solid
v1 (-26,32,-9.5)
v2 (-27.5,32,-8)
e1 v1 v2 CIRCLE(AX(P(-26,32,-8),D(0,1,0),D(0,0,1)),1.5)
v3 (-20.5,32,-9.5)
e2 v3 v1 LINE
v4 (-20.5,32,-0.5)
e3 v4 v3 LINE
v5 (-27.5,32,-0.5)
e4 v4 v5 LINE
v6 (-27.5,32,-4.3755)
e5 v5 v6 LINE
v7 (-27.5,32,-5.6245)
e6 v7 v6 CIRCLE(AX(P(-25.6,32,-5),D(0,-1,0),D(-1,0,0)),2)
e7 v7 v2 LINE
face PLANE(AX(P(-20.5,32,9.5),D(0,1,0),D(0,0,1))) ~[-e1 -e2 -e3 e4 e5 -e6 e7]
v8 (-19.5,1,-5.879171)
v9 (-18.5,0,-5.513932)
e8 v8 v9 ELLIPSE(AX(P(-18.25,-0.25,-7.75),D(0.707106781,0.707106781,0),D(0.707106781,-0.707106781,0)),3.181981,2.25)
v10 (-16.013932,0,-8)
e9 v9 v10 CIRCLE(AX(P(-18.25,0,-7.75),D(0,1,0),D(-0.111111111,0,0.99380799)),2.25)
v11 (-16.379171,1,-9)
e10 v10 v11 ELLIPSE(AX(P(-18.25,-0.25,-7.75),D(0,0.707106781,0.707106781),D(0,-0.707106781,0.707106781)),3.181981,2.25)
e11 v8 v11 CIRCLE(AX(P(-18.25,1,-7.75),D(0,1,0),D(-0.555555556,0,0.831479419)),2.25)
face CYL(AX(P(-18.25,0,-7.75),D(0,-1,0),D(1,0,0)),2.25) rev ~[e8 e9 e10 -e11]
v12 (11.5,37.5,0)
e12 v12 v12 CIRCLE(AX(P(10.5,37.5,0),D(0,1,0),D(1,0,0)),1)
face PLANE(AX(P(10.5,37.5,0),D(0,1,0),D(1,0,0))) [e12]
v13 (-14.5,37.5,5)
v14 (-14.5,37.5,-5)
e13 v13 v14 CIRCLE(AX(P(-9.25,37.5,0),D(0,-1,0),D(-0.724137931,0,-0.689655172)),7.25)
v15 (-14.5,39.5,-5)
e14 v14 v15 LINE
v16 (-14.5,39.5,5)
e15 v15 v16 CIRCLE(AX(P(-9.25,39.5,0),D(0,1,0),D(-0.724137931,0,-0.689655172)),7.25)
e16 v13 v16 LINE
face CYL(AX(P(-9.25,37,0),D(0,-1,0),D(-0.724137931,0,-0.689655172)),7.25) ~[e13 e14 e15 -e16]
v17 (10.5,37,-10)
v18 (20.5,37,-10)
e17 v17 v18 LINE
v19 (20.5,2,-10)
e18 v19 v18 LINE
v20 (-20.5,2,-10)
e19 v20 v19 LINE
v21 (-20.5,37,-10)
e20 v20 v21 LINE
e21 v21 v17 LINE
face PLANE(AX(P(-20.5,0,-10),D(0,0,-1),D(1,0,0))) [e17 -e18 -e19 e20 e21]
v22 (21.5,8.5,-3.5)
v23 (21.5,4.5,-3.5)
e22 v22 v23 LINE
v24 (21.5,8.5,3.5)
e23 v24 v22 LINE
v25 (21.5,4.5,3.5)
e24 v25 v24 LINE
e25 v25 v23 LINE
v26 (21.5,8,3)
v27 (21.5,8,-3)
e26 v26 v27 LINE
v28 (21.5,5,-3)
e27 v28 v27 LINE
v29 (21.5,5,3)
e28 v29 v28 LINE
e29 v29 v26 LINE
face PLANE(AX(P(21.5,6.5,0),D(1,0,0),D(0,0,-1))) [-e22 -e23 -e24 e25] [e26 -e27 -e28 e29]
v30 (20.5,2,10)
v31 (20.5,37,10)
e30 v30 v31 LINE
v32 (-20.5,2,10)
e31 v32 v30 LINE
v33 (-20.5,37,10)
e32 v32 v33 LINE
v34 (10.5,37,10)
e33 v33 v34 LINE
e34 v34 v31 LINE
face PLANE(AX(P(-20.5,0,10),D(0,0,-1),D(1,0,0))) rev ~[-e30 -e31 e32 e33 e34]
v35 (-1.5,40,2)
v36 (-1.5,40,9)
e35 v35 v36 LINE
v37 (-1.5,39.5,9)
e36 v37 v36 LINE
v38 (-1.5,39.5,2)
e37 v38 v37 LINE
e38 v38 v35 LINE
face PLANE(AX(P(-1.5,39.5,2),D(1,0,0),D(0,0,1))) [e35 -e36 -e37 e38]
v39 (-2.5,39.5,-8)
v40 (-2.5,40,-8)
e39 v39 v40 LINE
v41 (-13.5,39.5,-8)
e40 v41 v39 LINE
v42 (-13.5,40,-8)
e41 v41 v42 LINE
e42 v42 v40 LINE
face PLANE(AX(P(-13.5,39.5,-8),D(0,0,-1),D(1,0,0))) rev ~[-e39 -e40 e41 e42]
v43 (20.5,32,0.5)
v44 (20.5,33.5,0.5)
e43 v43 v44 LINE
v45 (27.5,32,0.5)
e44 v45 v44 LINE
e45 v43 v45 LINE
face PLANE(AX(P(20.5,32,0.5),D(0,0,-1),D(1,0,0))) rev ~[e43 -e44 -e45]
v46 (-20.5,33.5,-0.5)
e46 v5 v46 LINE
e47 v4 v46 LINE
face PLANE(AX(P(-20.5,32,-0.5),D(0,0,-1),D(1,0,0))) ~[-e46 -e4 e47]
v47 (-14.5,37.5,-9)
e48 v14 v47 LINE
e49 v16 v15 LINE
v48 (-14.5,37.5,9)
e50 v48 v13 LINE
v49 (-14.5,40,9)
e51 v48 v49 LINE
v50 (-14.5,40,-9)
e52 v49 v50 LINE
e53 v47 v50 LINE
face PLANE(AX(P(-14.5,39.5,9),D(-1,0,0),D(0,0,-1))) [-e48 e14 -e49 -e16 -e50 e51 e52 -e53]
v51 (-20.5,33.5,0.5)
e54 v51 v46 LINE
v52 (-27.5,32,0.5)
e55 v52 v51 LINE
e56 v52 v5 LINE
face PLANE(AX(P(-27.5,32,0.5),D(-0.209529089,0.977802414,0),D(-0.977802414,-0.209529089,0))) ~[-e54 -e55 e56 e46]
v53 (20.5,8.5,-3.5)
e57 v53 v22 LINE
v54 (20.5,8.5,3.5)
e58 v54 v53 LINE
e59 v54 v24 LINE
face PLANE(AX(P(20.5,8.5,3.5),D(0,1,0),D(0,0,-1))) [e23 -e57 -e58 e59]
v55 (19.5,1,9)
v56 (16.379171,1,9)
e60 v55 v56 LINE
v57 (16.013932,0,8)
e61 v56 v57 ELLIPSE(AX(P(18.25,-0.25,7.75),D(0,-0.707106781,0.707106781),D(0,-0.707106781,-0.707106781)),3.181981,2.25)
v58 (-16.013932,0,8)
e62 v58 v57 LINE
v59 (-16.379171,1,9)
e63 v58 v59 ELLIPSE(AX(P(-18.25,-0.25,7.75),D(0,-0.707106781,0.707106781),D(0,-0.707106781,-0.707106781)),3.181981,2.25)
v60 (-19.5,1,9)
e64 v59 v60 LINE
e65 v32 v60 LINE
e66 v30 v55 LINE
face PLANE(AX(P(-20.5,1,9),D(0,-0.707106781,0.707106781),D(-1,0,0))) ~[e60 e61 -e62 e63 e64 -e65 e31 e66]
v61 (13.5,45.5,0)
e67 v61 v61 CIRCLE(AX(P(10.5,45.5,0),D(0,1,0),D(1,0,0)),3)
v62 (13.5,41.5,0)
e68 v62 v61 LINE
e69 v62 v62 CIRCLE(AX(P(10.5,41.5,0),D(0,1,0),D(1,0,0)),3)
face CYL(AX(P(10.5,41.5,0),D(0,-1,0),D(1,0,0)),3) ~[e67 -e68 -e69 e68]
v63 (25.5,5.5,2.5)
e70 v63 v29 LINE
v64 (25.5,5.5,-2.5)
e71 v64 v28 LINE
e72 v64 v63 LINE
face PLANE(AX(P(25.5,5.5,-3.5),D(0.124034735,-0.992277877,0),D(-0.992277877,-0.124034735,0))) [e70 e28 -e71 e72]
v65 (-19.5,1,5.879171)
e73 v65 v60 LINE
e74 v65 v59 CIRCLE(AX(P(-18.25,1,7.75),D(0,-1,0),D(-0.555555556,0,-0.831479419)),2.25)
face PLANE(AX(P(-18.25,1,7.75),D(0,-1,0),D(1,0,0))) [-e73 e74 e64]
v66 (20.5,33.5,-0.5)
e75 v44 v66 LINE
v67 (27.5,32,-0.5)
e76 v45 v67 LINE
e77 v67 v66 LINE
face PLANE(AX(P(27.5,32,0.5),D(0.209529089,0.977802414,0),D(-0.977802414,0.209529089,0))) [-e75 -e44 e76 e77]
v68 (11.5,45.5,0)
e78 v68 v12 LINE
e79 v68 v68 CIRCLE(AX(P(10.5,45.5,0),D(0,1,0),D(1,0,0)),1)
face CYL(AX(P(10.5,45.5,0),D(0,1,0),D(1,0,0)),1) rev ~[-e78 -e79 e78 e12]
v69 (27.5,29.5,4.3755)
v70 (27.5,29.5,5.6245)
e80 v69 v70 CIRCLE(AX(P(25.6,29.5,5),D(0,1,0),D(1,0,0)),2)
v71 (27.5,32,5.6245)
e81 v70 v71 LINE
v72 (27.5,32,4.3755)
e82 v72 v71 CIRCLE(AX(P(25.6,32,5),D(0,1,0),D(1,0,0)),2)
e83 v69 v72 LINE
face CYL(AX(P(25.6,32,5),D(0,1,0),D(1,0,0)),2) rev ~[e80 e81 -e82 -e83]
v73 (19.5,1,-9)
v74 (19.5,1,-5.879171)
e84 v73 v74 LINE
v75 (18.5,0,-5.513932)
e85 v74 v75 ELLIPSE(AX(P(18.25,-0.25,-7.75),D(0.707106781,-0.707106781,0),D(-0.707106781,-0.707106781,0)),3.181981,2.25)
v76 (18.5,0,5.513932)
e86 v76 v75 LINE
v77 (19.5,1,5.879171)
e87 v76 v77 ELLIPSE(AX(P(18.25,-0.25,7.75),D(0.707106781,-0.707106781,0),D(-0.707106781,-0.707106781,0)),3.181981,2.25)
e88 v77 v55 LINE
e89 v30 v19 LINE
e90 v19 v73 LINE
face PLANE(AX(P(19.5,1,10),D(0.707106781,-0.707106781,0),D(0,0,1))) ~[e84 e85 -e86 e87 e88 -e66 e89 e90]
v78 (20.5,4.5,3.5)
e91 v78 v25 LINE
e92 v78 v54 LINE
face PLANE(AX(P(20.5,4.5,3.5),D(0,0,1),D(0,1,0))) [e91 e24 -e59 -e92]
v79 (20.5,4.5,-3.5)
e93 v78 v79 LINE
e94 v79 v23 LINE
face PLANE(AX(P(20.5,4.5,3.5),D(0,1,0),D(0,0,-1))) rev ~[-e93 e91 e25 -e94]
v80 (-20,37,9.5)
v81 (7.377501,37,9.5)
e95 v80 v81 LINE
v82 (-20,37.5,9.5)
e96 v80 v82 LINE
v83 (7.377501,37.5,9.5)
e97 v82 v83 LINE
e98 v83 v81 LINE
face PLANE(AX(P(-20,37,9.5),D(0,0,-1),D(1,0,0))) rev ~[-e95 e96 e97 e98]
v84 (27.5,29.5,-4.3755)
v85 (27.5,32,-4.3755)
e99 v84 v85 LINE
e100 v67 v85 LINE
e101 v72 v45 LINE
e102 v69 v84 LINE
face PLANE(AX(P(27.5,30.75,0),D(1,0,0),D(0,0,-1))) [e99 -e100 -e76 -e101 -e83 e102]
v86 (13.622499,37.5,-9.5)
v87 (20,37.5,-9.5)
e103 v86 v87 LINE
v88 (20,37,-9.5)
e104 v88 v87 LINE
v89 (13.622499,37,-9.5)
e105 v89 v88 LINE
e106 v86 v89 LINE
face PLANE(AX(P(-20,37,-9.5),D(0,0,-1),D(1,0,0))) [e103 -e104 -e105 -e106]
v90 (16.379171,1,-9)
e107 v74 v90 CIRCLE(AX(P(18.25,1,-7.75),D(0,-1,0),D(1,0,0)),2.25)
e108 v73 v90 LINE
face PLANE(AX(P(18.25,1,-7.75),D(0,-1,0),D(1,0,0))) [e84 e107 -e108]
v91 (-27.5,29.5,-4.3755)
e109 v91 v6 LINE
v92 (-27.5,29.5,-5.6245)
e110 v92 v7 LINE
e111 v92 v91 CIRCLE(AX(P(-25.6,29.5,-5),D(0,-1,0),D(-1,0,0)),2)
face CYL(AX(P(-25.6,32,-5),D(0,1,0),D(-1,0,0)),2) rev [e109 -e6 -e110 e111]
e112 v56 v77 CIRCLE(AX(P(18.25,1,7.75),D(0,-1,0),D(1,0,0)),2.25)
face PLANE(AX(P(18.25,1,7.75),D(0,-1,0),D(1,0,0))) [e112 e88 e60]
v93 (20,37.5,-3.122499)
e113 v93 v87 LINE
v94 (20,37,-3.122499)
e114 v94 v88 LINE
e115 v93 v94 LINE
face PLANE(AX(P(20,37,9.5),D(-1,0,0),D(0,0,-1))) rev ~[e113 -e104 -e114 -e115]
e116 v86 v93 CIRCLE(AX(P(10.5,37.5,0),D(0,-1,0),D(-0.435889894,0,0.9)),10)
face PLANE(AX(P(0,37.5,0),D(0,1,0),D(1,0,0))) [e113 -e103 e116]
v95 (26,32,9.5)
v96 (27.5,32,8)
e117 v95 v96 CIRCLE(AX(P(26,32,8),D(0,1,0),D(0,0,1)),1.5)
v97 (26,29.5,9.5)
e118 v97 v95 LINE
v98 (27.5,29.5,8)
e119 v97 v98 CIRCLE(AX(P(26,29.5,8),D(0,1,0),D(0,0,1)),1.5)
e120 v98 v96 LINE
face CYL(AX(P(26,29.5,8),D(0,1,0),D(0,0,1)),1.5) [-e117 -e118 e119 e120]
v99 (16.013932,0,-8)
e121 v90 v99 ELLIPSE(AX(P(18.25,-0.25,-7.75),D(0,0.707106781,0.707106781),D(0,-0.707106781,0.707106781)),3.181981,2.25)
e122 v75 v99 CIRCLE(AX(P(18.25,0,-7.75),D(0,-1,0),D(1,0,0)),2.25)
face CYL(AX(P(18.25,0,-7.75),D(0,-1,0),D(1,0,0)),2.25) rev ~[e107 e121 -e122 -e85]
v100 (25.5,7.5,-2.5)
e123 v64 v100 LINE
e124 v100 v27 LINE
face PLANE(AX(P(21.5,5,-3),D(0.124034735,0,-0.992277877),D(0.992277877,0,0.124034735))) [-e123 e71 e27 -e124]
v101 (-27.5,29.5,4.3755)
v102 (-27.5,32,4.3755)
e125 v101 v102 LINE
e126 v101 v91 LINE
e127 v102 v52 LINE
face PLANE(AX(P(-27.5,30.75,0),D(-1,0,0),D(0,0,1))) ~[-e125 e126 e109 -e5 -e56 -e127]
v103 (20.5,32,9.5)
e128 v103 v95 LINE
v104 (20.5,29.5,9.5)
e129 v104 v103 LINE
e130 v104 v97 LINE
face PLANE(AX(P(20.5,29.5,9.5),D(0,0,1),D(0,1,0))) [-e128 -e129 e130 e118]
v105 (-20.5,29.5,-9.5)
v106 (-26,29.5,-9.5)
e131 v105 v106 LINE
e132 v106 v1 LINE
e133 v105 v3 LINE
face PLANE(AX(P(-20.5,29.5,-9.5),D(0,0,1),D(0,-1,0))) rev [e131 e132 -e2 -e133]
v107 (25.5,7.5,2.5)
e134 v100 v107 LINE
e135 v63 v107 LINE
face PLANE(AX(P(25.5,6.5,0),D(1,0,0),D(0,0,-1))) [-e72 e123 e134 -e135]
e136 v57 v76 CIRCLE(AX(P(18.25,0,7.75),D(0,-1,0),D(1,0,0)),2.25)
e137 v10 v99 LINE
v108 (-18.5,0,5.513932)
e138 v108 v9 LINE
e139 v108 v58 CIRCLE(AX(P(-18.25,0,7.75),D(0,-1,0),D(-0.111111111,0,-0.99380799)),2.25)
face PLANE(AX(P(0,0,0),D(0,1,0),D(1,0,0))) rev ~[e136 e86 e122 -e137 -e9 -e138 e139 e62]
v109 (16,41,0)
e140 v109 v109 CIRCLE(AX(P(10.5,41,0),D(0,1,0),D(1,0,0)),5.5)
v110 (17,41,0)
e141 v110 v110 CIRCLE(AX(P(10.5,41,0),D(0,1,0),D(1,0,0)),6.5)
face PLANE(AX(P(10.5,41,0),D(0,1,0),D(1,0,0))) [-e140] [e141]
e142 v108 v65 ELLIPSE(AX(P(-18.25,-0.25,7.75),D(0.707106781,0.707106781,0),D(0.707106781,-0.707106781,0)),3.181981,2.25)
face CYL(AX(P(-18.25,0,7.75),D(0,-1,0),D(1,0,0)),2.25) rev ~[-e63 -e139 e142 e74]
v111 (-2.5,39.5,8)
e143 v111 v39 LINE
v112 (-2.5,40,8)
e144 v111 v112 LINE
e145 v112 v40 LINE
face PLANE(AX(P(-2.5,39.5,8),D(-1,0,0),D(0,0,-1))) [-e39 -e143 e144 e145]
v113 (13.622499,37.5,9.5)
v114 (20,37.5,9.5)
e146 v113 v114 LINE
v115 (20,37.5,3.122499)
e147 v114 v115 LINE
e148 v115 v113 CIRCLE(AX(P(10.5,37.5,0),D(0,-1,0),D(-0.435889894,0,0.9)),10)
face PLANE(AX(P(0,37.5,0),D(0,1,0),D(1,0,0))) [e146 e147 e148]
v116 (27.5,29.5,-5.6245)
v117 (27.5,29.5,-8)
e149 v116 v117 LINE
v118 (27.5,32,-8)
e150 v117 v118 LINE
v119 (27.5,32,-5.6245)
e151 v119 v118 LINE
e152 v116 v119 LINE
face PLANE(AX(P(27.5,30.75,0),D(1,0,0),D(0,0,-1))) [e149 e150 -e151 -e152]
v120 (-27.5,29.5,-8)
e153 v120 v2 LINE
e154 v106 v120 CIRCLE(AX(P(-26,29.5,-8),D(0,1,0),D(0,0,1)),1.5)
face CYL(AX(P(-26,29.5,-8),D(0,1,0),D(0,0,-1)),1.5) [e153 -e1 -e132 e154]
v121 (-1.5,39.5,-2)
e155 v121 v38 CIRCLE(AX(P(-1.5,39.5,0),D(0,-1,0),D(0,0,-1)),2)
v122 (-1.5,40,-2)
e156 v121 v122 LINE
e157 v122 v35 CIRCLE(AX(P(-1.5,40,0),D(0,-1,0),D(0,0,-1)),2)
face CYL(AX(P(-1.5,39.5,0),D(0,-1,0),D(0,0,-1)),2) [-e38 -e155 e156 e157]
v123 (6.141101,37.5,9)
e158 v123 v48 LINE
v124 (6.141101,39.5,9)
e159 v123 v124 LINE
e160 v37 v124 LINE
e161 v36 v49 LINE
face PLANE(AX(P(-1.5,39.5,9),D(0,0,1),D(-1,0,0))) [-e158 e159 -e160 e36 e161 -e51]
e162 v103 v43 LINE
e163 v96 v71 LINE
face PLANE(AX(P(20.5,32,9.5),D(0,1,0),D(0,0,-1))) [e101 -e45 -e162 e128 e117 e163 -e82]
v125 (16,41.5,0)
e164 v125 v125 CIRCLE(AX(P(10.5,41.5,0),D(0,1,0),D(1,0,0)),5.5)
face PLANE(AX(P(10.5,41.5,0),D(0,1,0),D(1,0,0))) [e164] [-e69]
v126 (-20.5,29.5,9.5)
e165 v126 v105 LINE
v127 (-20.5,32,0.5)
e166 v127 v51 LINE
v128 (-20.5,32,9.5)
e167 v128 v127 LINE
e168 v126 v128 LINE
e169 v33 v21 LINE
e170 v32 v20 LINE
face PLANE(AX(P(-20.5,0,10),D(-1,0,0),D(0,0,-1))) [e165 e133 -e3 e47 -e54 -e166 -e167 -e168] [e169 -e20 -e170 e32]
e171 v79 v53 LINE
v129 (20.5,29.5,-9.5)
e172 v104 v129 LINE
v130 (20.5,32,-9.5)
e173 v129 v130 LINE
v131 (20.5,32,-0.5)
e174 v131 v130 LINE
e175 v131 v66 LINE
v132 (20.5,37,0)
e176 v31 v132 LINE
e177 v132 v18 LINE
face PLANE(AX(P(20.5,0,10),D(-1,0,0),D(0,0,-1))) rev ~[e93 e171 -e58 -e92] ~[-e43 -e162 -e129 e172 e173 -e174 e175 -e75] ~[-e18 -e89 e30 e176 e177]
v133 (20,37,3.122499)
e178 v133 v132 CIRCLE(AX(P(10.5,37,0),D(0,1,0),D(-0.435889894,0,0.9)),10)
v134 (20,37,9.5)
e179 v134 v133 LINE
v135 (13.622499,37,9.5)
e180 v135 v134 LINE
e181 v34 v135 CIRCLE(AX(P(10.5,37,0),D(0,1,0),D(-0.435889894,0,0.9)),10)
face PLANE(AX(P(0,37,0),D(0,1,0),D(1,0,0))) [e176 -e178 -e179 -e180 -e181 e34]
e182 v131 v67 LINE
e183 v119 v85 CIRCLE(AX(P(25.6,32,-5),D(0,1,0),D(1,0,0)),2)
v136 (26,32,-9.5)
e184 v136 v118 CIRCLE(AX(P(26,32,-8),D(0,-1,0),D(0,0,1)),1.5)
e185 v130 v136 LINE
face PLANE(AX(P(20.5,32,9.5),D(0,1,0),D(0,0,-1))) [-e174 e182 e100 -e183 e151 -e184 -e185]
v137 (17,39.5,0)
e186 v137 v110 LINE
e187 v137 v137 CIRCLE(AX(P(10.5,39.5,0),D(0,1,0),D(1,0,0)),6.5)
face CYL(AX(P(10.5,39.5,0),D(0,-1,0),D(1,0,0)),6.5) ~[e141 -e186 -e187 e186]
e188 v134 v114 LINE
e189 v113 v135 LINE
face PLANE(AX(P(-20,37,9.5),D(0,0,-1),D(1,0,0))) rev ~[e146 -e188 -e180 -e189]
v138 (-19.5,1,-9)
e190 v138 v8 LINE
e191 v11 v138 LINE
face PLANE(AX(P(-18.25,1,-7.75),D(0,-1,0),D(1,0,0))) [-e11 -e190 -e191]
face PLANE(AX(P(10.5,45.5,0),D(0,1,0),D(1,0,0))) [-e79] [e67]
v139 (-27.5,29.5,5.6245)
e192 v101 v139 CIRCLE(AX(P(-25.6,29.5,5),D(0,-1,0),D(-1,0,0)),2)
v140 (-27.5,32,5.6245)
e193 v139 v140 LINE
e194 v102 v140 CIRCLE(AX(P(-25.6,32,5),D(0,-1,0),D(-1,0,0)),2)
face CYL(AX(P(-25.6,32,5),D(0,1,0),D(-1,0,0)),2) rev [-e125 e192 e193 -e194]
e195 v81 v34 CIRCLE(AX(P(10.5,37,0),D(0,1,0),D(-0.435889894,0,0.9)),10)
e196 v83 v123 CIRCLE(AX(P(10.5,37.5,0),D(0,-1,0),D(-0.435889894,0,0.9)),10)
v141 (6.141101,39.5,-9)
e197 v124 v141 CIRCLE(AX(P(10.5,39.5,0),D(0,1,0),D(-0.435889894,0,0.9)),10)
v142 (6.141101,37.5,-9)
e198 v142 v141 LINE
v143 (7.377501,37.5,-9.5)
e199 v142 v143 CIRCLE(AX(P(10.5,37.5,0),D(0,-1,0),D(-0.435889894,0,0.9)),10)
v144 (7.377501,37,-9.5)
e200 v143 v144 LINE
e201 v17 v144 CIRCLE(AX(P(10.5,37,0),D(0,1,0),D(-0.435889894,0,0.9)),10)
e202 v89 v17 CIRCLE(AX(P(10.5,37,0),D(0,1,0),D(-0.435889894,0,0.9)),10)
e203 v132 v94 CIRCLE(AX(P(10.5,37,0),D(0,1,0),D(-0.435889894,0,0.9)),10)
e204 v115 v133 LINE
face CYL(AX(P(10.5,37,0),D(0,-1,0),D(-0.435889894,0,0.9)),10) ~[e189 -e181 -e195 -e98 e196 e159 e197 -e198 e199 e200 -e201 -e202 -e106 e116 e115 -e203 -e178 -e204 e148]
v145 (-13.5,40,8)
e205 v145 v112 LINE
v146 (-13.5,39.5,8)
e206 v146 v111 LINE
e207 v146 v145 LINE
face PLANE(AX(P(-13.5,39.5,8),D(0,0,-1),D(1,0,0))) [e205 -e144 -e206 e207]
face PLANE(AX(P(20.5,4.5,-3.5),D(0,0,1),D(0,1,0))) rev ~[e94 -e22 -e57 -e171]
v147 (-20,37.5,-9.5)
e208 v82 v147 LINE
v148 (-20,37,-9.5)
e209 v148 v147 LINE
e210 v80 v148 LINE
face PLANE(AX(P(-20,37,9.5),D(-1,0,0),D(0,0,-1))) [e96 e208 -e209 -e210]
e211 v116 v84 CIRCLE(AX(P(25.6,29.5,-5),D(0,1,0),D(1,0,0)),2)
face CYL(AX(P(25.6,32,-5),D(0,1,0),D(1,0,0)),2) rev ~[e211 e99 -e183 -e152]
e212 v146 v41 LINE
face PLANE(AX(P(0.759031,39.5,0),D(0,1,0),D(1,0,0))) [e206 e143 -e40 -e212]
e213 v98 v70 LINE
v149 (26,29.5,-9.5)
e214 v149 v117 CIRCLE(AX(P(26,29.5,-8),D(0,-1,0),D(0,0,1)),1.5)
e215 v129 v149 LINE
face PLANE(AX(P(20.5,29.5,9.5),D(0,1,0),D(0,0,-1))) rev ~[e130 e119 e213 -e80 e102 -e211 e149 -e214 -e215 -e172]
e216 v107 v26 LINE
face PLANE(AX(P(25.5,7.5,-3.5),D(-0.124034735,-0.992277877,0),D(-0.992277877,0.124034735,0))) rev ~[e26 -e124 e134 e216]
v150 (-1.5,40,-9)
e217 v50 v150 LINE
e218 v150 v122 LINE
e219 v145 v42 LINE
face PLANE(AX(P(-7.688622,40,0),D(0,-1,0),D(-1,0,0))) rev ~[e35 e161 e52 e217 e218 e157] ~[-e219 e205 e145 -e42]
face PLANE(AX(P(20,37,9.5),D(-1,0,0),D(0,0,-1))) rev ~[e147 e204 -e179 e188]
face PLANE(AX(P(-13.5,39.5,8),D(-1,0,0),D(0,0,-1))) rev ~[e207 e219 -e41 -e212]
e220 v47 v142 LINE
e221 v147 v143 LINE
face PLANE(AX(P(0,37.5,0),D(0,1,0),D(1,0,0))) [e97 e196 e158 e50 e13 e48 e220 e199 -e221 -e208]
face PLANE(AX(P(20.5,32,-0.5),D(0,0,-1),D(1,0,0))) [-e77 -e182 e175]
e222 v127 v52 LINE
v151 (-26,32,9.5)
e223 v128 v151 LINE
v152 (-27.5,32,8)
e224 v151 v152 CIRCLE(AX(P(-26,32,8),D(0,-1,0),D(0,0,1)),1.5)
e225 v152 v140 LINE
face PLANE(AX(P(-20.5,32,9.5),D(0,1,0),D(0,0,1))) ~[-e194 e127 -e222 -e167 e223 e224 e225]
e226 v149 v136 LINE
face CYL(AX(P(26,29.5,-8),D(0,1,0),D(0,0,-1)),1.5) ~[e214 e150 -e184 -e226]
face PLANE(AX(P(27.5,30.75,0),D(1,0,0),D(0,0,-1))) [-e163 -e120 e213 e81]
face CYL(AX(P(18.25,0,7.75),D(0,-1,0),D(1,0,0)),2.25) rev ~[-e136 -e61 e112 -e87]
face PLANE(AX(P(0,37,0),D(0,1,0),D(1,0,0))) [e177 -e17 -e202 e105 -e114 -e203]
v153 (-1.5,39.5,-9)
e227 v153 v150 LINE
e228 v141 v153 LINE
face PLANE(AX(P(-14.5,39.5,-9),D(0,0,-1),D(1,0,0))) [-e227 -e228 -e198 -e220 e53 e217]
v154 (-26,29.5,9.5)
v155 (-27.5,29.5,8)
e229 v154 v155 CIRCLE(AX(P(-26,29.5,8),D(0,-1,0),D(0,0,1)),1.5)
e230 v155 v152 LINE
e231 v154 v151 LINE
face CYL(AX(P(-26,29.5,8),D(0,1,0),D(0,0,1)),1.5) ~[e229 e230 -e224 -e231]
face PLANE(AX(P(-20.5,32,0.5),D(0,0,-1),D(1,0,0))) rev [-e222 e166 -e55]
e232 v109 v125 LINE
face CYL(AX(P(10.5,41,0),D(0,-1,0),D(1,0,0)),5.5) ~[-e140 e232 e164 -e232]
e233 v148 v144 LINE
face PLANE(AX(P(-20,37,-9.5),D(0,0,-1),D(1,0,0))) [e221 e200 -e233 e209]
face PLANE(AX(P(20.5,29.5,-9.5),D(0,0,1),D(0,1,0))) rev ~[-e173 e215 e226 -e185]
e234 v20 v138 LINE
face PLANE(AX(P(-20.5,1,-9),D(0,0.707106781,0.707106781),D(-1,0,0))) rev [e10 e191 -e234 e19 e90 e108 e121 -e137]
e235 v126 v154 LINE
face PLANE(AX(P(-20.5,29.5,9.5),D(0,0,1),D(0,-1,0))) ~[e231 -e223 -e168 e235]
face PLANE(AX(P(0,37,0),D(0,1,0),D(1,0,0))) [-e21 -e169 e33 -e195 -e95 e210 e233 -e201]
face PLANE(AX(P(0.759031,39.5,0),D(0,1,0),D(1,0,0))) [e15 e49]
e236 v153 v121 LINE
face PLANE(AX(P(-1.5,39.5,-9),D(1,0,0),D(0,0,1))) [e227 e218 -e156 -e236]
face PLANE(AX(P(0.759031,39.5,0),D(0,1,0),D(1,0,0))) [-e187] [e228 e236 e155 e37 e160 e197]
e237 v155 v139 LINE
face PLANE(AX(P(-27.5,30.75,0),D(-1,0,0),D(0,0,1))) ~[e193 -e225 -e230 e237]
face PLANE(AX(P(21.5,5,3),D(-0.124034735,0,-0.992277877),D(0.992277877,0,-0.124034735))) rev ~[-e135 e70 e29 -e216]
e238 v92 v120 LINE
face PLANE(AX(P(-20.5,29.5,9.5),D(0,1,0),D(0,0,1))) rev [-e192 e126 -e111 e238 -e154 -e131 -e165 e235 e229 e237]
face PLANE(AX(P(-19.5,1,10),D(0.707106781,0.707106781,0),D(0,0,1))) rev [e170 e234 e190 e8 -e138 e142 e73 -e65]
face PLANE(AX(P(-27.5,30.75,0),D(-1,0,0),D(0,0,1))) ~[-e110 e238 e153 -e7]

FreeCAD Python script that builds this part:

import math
import FreeCAD as App
import Part
import Sketcher
Q = App.Units.Quantity


def edges_at(feature, points):
    """Names of the edges that pass closest to the given points."""
    edges = feature.Shape.Edges
    near = lambda p: min(range(len(edges)), key=lambda i: edges[i].distToShape(Part.Vertex(*p))[0])
    return sorted({f"Edge{near(p) + 1}" for p in points})

doc = App.newDocument("Part")
params = doc.addObject("Spreadsheet::Sheet", "Params")
for row, (alias, value) in enumerate([
    ("sketch1_width", "41 mm"),
    ("sketch1_height", "20 mm"),
    ("pad1_length", "40 mm"),
    ("chamfer_size", "2 mm"),
    ("sketch2_diameter", "4.5 mm"),
    ("pocket1_length", "1 mm"),
    ("sketch3_height", "19 mm"),
    ("sketch3_width", "2.5 mm"),
    ("pad2_length", "7 mm"),
    ("fillet_radius", "1.5 mm"),
    ("sketch4_width", "7 mm"),
    ("sketch4_height", "1 mm"),
    ("pad3_length", "1.5 mm"),
    ("sketch5_width", "7 mm"),
    ("sketch5_height", "1.5 mm"),
    ("pocket2_length", "1 mm"),
    ("sketch6_diameter", "4 mm"),
    ("pocket3_length", "2.5 mm"),
    ("fillet2_radius", "1.5 mm"),
    ("sketch7_width", "41 mm"),
    ("sketch7_height", "20 mm"),
    ("pocket4_length", "3 mm"),
    ("sketch8_width", "40 mm"),
    ("sketch8_height", "19 mm"),
    ("pad4_length", "0.5 mm"),
    ("sketch9_radius", "10 mm"),
    ("sketch9_height", "4 mm"),
    ("sketch9_radius2", "7.25 mm"),
    ("pad5_length", "2.5 mm"),
    ("sketch10_radius", "2 mm"),
    ("sketch10_width", "13 mm"),
    ("sketch10_width2", "11 mm"),
    ("sketch10_height", "18 mm"),
    ("sketch10_height2", "16 mm"),
    ("pad6_length", "0.5 mm"),
    ("sketch11_diameter", "13 mm"),
    ("pad7_length", "1.5 mm"),
    ("sketch12_diameter", "11 mm"),
    ("pad8_length", "0.5 mm"),
    ("sketch13_diameter", "6 mm"),
    ("pad9_length", "4 mm"),
    ("sketch14_diameter", "2 mm"),
    ("pocket5_length", "8 mm"),
    ("sketch15_width", "4 mm"),
    ("sketch15_height", "7 mm"),
    ("pad10_length", "5 mm"),
    ("sketch16_width", "4 mm"),
    ("sketch16_width2", "3 mm"),
    ("sketch16_height", "7 mm"),
    ("sketch16_height2", "6 mm"),
    ("pocket6_length", "4 mm"),
    ("sketch17_width", "4 mm"),
    ("sketch17_height", "0.5 mm"),
    ("pocket7_length", "3 mm"),
    ("sketch18_width", "4 mm"),
    ("sketch18_height", "0.5 mm"),
    ("pocket8_length", "7 mm"),
], start=1):
    params.set(f"A{row}", alias)
    params.set(f"B{row}", "=" + value)
    params.setAlias(f"B{row}", alias)

body = doc.addObject("PartDesign::Body", "Body")

# Sketch on XZ plane
sketch1 = body.newObject("Sketcher::SketchObject", "Sketch")
sketch1.AttachmentSupport = (doc.getObject("XZ_Plane"), [""])
sketch1.MapMode = "FlatFace"
sketch1.addGeometry([
    Part.LineSegment(App.Vector(-20, -10, 0), App.Vector(-20, 10, 0)),
    Part.LineSegment(App.Vector(-20, 10, 0), App.Vector(20, 10, 0)),
    Part.LineSegment(App.Vector(20, 10, 0), App.Vector(20, -10, 0)),
    Part.LineSegment(App.Vector(20, -10, 0), App.Vector(-20, -10, 0)),
], False)
sketch1.addConstraint([
    Sketcher.Constraint("Coincident", 0, 2, 1, 1),
    Sketcher.Constraint("Coincident", 1, 2, 2, 1),
    Sketcher.Constraint("Coincident", 2, 2, 3, 1),
    Sketcher.Constraint("Coincident", 3, 2, 0, 1),
    Sketcher.Constraint("Vertical", 0),
    Sketcher.Constraint("Horizontal", 1),
    Sketcher.Constraint("Vertical", 2),
    Sketcher.Constraint("Horizontal", 3),
    Sketcher.Constraint("Symmetric", 0, 2, 2, 2, -1, 1),
    Sketcher.Constraint("DistanceX", 1, 1, 1, 2, Q("41 mm")),
    Sketcher.Constraint("DistanceY", 0, 1, 0, 2, Q("20 mm")),
])
sketch1.setExpression("Constraints[9]", "Params.sketch1_width")
sketch1.setExpression("Constraints[10]", "Params.sketch1_height")
pad1 = body.newObject("PartDesign::Pad", "Pad")
pad1.Profile = sketch1
pad1.setExpression("Length", "Params.pad1_length")
pad1.Reversed = True
doc.recompute()

chamfer = body.newObject("PartDesign::Chamfer", "Chamfer")
chamfer.Base = (pad1, edges_at(pad1, [
    (0, 0, 10),
    (-20.5, 0, 0),
    (0, 0, -10),
    (20.5, 0, 0),
]))
chamfer.setExpression("Size", "Params.chamfer_size")

# Sketch on XZ plane
sketch2 = body.newObject("Sketcher::SketchObject", "Sketch001")
sketch2.AttachmentSupport = (doc.getObject("XZ_Plane"), [""])
sketch2.MapMode = "FlatFace"
sketch2.addGeometry([
    Part.Circle(App.Vector(18.2, 7.8, 0), App.Vector(0, 0, 1), 2.2),
    Part.Circle(App.Vector(-18.2, 7.8, 0), App.Vector(0, 0, 1), 2.2),
    Part.Circle(App.Vector(-18.2, -7.8, 0), App.Vector(0, 0, 1), 2.2),
    Part.Circle(App.Vector(18.2, -7.8, 0), App.Vector(0, 0, 1), 2.2),
], False)
sketch2.addConstraint([
    Sketcher.Constraint("Equal", 0, 1),
    Sketcher.Constraint("Equal", 1, 2),
    Sketcher.Constraint("Equal", 2, 3),
    Sketcher.Constraint("Symmetric", 0, 3, 2, 3, -1, 1),
    Sketcher.Constraint("Symmetric", 1, 3, 3, 3, -1, 1),
    Sketcher.Constraint("Symmetric", 0, 3, 1, 3, -2),
    Sketcher.Constraint("Diameter", 0, Q("4.5 mm")),
    Sketcher.Constraint("DistanceX", 1, 3, 0, 3, Q("36.5 mm")),
    Sketcher.Constraint("DistanceY", 2, 3, 1, 3, Q("15.5 mm")),
])
sketch2.setExpression("Constraints[6]", "Params.sketch2_diameter")
pocket1 = body.newObject("PartDesign::Pocket", "Pocket")
pocket1.Profile = sketch2
pocket1.setExpression("Length", "Params.pocket1_length")

# Sketch on YZ plane
sketch3 = body.newObject("Sketcher::SketchObject", "Sketch002")
sketch3.AttachmentSupport = (doc.getObject("YZ_Plane"), [""])
sketch3.MapMode = "FlatFace"
sketch3.AttachmentOffset = App.Placement(App.Vector(0, 0, 20.5), App.Rotation())
sketch3.addGeometry([
    Part.LineSegment(App.Vector(32, 9.5, 0), App.Vector(29.5, 9.5, 0)),
    Part.LineSegment(App.Vector(29.5, 9.5, 0), App.Vector(29.5, -9.5, 0)),
    Part.LineSegment(App.Vector(29.5, -9.5, 0), App.Vector(32, -9.5, 0)),
    Part.LineSegment(App.Vector(32, -9.5, 0), App.Vector(32, 9.5, 0)),
], False)
sketch3.addConstraint([
    Sketcher.Constraint("Coincident", 0, 2, 1, 1),
    Sketcher.Constraint("Coincident", 1, 2, 2, 1),
    Sketcher.Constraint("Coincident", 2, 2, 3, 1),
    Sketcher.Constraint("Coincident", 3, 2, 0, 1),
    Sketcher.Constraint("Horizontal", 0),
    Sketcher.Constraint("Vertical", 1),
    Sketcher.Constraint("Horizontal", 2),
    Sketcher.Constraint("Vertical", 3),
    Sketcher.Constraint("DistanceY", 1, 2, 1, 1, Q("19 mm")),
    Sketcher.Constraint("DistanceX", 0, 2, 0, 1, Q("2.5 mm")),
    Sketcher.Constraint("DistanceX", -1, 1, 2, 2, Q("32 mm")),
    Sketcher.Constraint("DistanceY", -1, 1, 0, 2, Q("9.5 mm")),
])
sketch3.setExpression("Constraints[8]", "Params.sketch3_height")
sketch3.setExpression("Constraints[9]", "Params.sketch3_width")
pad2 = body.newObject("PartDesign::Pad", "Pad001")
pad2.Profile = sketch3
pad2.setExpression("Length", "Params.pad2_length")
doc.recompute()

fillet = body.newObject("PartDesign::Fillet", "Fillet")
fillet.Base = (pad2, edges_at(pad2, [(27.5, 30.75, 9.5), (27.5, 30.75, -9.5)]))
fillet.setExpression("Radius", "Params.fillet_radius")

# Sketch on XZ plane
sketch4 = body.newObject("Sketcher::SketchObject", "Sketch003")
sketch4.AttachmentSupport = (doc.getObject("XZ_Plane"), [""])
sketch4.MapMode = "FlatFace"
sketch4.AttachmentOffset = App.Placement(App.Vector(0, 0, -32), App.Rotation())
sketch4.addGeometry([
    Part.LineSegment(App.Vector(20.5, -0.5, 0), App.Vector(20.5, 0.5, 0)),
    Part.LineSegment(App.Vector(20.5, 0.5, 0), App.Vector(27.5, 0.5, 0)),
    Part.LineSegment(App.Vector(27.5, 0.5, 0), App.Vector(27.5, -0.5, 0)),
    Part.LineSegment(App.Vector(27.5, -0.5, 0), App.Vector(20.5, -0.5, 0)),
], False)
sketch4.addConstraint([
    Sketcher.Constraint("Coincident", 0, 2, 1, 1),
    Sketcher.Constraint("Coincident", 1, 2, 2, 1),
    Sketcher.Constraint("Coincident", 2, 2, 3, 1),
    Sketcher.Constraint("Coincident", 3, 2, 0, 1),
    Sketcher.Constraint("Vertical", 0),
    Sketcher.Constraint("Horizontal", 1),
    Sketcher.Constraint("Vertical", 2),
    Sketcher.Constraint("Horizontal", 3),
    Sketcher.Constraint("DistanceX", 1, 1, 1, 2, Q("7 mm")),
    Sketcher.Constraint("DistanceY", 0, 1, 0, 2, Q("1 mm")),
    Sketcher.Constraint("DistanceX", -1, 1, 0, 2, Q("20.5 mm")),
    Sketcher.Constraint("DistanceY", -1, 1, 0, 2, Q("0.5 mm")),
])
sketch4.setExpression("Constraints[8]", "Params.sketch4_width")
sketch4.setExpression("Constraints[9]", "Params.sketch4_height")
pad3 = body.newObject("PartDesign::Pad", "Pad002")
pad3.Profile = sketch4
pad3.setExpression("Length", "Params.pad3_length")
pad3.Reversed = True

# Sketch on XY plane
sketch5 = body.newObject("Sketcher::SketchObject", "Sketch004")
sketch5.AttachmentSupport = (doc.getObject("XY_Plane"), [""])
sketch5.MapMode = "FlatFace"
sketch5.AttachmentOffset = App.Placement(App.Vector(0, 0, 0.5), App.Rotation())
sketch5.addGeometry([
    Part.LineSegment(App.Vector(27.5, 32, 0), App.Vector(27.5, 33.5, 0)),
    Part.LineSegment(App.Vector(27.5, 33.5, 0), App.Vector(20.5, 33.5, 0)),
    Part.LineSegment(App.Vector(20.5, 33.5, 0), App.Vector(27.5, 32, 0)),
], False)
sketch5.addConstraint([
    Sketcher.Constraint("Coincident", 0, 2, 1, 1),
    Sketcher.Constraint("Coincident", 1, 2, 2, 1),
    Sketcher.Constraint("Coincident", 2, 2, 0, 1),
    Sketcher.Constraint("Vertical", 0),
    Sketcher.Constraint("Horizontal", 1),
    Sketcher.Constraint("DistanceX", 1, 2, 1, 1, Q("7 mm")),
    Sketcher.Constraint("DistanceY", 0, 1, 0, 2, Q("1.5 mm")),
    Sketcher.Constraint("DistanceY", -1, 1, 2, 2, Q("32 mm")),
    Sketcher.Constraint("DistanceX", -1, 1, 0, 2, Q("27.5 mm")),
])
sketch5.setExpression("Constraints[5]", "Params.sketch5_width")
sketch5.setExpression("Constraints[6]", "Params.sketch5_height")
pocket2 = body.newObject("PartDesign::Pocket", "Pocket001")
pocket2.Profile = sketch5
pocket2.setExpression("Length", "Params.pocket2_length")

# Sketch on XZ plane
sketch6 = body.newObject("Sketcher::SketchObject", "Sketch005")
sketch6.AttachmentSupport = (doc.getObject("XZ_Plane"), [""])
sketch6.MapMode = "FlatFace"
sketch6.AttachmentOffset = App.Placement(App.Vector(0, 0, -32), App.Rotation())
sketch6.addGeometry([
    Part.Circle(App.Vector(25.6, -5, 0), App.Vector(0, 0, 1), 2),
    Part.Circle(App.Vector(25.6, 5, 0), App.Vector(0, 0, 1), 2),
], False)
sketch6.addConstraint([
    Sketcher.Constraint("Equal", 0, 1),
    Sketcher.Constraint("Symmetric", 0, 3, 1, 3, -1),
    Sketcher.Constraint("Diameter", 0, Q("4 mm")),
    Sketcher.Constraint("DistanceY", 0, 3, -1, 1, Q("5 mm")),
    Sketcher.Constraint("DistanceX", -1, 1, 0, 3, Q("25.6 mm")),
])
sketch6.setExpression("Constraints[2]", "Params.sketch6_diameter")
pocket3 = body.newObject("PartDesign::Pocket", "Pocket002")
pocket3.Profile = sketch6
pocket3.setExpression("Length", "Params.pocket3_length")
pocket3.Reversed = True
doc.recompute()

mirrored = body.newObject("PartDesign::Mirrored", "Mirrored")
mirrored.Originals = [pad2, pad3, pocket2, pocket3]
mirrored.MirrorPlane = (doc.getObject("YZ_Plane"), [""])
body.Tip = mirrored
doc.recompute()

fillet2 = body.newObject("PartDesign::Fillet", "Fillet001")
fillet2.Base = (mirrored, edges_at(mirrored, [(-27.5, 30.75, 9.5), (-27.5, 30.75, -9.5)]))
fillet2.setExpression("Radius", "Params.fillet2_radius")

# Sketch on XZ plane
sketch7 = body.newObject("Sketcher::SketchObject", "Sketch006")
sketch7.AttachmentSupport = (doc.getObject("XZ_Plane"), [""])
sketch7.MapMode = "FlatFace"
sketch7.AttachmentOffset = App.Placement(App.Vector(0, 0, -40), App.Rotation())
sketch7.addGeometry([
    Part.LineSegment(App.Vector(-20, -10, 0), App.Vector(-20, 10, 0)),
    Part.LineSegment(App.Vector(-20, 10, 0), App.Vector(20, 10, 0)),
    Part.LineSegment(App.Vector(20, 10, 0), App.Vector(20, -10, 0)),
    Part.LineSegment(App.Vector(20, -10, 0), App.Vector(-20, -10, 0)),
], False)
sketch7.addConstraint([
    Sketcher.Constraint("Coincident", 0, 2, 1, 1),
    Sketcher.Constraint("Coincident", 1, 2, 2, 1),
    Sketcher.Constraint("Coincident", 2, 2, 3, 1),
    Sketcher.Constraint("Coincident", 3, 2, 0, 1),
    Sketcher.Constraint("Vertical", 0),
    Sketcher.Constraint("Horizontal", 1),
    Sketcher.Constraint("Vertical", 2),
    Sketcher.Constraint("Horizontal", 3),
    Sketcher.Constraint("Symmetric", 0, 2, 2, 2, -1, 1),
    Sketcher.Constraint("DistanceX", 1, 1, 1, 2, Q("41 mm")),
    Sketcher.Constraint("DistanceY", 0, 1, 0, 2, Q("20 mm")),
])
sketch7.setExpression("Constraints[9]", "Params.sketch7_width")
sketch7.setExpression("Constraints[10]", "Params.sketch7_height")
pocket4 = body.newObject("PartDesign::Pocket", "Pocket003")
pocket4.Profile = sketch7
pocket4.setExpression("Length", "Params.pocket4_length")
pocket4.Reversed = True

# Sketch on XZ plane
sketch8 = body.newObject("Sketcher::SketchObject", "Sketch007")
sketch8.AttachmentSupport = (doc.getObject("XZ_Plane"), [""])
sketch8.MapMode = "FlatFace"
sketch8.AttachmentOffset = App.Placement(App.Vector(0, 0, -37), App.Rotation())
sketch8.addGeometry([
    Part.LineSegment(App.Vector(-20, -10, 0), App.Vector(-20, 10, 0)),
    Part.LineSegment(App.Vector(-20, 10, 0), App.Vector(20, 10, 0)),
    Part.LineSegment(App.Vector(20, 10, 0), App.Vector(20, -10, 0)),
    Part.LineSegment(App.Vector(20, -10, 0), App.Vector(-20, -10, 0)),
], False)
sketch8.addConstraint([
    Sketcher.Constraint("Coincident", 0, 2, 1, 1),
    Sketcher.Constraint("Coincident", 1, 2, 2, 1),
    Sketcher.Constraint("Coincident", 2, 2, 3, 1),
    Sketcher.Constraint("Coincident", 3, 2, 0, 1),
    Sketcher.Constraint("Vertical", 0),
    Sketcher.Constraint("Horizontal", 1),
    Sketcher.Constraint("Vertical", 2),
    Sketcher.Constraint("Horizontal", 3),
    Sketcher.Constraint("Symmetric", 0, 2, 2, 2, -1, 1),
    Sketcher.Constraint("DistanceX", 1, 1, 1, 2, Q("40 mm")),
    Sketcher.Constraint("DistanceY", 0, 1, 0, 2, Q("19 mm")),
])
sketch8.setExpression("Constraints[9]", "Params.sketch8_width")
sketch8.setExpression("Constraints[10]", "Params.sketch8_height")
pad4 = body.newObject("PartDesign::Pad", "Pad003")
pad4.Profile = sketch8
pad4.setExpression("Length", "Params.pad4_length")
pad4.Reversed = True

# Sketch on XZ plane
sketch9 = body.newObject("Sketcher::SketchObject", "Sketch008")
sketch9.AttachmentSupport = (doc.getObject("XZ_Plane"), [""])
sketch9.MapMode = "FlatFace"
sketch9.AttachmentOffset = App.Placement(App.Vector(0, 0, -37), App.Rotation())
sketch9.addGeometry([
    Part.LineSegment(App.Vector(6.1, -9, 0), App.Vector(-14.5, -9, 0)),  # 0
    Part.LineSegment(App.Vector(-14.5, -9, 0), App.Vector(-14.5, -5, 0)),  # 1
    Part.ArcOfCircle(Part.Circle(App.Vector(-9.2, 0, 0), App.Vector(0, 0, 1), 7.2), math.radians(136), math.radians(224)),  # 2
    Part.LineSegment(App.Vector(-14.5, 5, 0), App.Vector(-14.5, 9, 0)),  # 3
    Part.LineSegment(App.Vector(-14.5, 9, 0), App.Vector(6.1, 9, 0)),  # 4
    Part.ArcOfCircle(Part.Circle(App.Vector(10.5, 0, 0), App.Vector(0, 0, 1), 10), math.radians(-116), math.radians(116)),  # 5
], False)
sketch9.addConstraint([
    Sketcher.Constraint("Coincident", 0, 2, 1, 1),
    Sketcher.Constraint("Coincident", 1, 2, 2, 2),
    Sketcher.Constraint("Coincident", 2, 1, 3, 1),
    Sketcher.Constraint("Coincident", 3, 2, 4, 1),
    Sketcher.Constraint("Coincident", 4, 2, 5, 2),
    Sketcher.Constraint("Coincident", 5, 1, 0, 1),
    Sketcher.Constraint("Horizontal", 0),
    Sketcher.Constraint("Vertical", 1),
    Sketcher.Constraint("Vertical", 3),
    Sketcher.Constraint("Horizontal", 4),
    Sketcher.Constraint("Symmetric", 1, 2, 2, 1, -1),
    Sketcher.Constraint("Symmetric", 4, 2, 5, 1, -1),
    Sketcher.Constraint("Radius", 5, Q("10 mm")),
    Sketcher.Constraint("DistanceY", 1, 1, 1, 2, Q("4 mm")),
    Sketcher.Constraint("Radius", 2, Q("7.25 mm")),
    Sketcher.Constraint("DistanceY", 0, 2, -1, 1, Q("9 mm")),
    Sketcher.Constraint("DistanceX", 0, 2, 5, 3, Q("25 mm")),
    Sketcher.Constraint("DistanceX", -1, 1, 5, 3, Q("10.5 mm")),
])
sketch9.setExpression("Constraints[12]", "Params.sketch9_radius")
sketch9.setExpression("Constraints[13]", "Params.sketch9_height")
sketch9.setExpression("Constraints[14]", "Params.sketch9_radius2")
pad5 = body.newObject("PartDesign::Pad", "Pad004")
pad5.Profile = sketch9
pad5.setExpression("Length", "Params.pad5_length")
pad5.Reversed = True

# Sketch on XZ plane
sketch10 = body.newObject("Sketcher::SketchObject", "Sketch009")
sketch10.AttachmentSupport = (doc.getObject("XZ_Plane"), [""])
sketch10.MapMode = "FlatFace"
sketch10.AttachmentOffset = App.Placement(App.Vector(0, 0, -39.5), App.Rotation())
sketch10.addGeometry([
    Part.LineSegment(App.Vector(-1.5, -9, 0), App.Vector(-14.5, -9, 0)),  # 0
    Part.LineSegment(App.Vector(-14.5, -9, 0), App.Vector(-14.5, 9, 0)),  # 1
    Part.LineSegment(App.Vector(-14.5, 9, 0), App.Vector(-1.5, 9, 0)),  # 2
    Part.LineSegment(App.Vector(-1.5, 9, 0), App.Vector(-1.5, 2, 0)),  # 3
    Part.ArcOfCircle(Part.Circle(App.Vector(-1.5, 0, 0), App.Vector(0, 0, 1), 2), math.radians(-90), math.radians(90)),  # 4
    Part.LineSegment(App.Vector(-1.5, -2, 0), App.Vector(-1.5, -9, 0)),  # 5
    Part.LineSegment(App.Vector(-13.5, 8, 0), App.Vector(-13.5, -8, 0)),  # 6
    Part.LineSegment(App.Vector(-13.5, -8, 0), App.Vector(-2.5, -8, 0)),  # 7
    Part.LineSegment(App.Vector(-2.5, -8, 0), App.Vector(-2.5, 8, 0)),  # 8
    Part.LineSegment(App.Vector(-2.5, 8, 0), App.Vector(-13.5, 8, 0)),  # 9
], False)
sketch10.addConstraint([
    Sketcher.Constraint("Coincident", 0, 2, 1, 1),
    Sketcher.Constraint("Coincident", 1, 2, 2, 1),
    Sketcher.Constraint("Coincident", 2, 2, 3, 1),
    Sketcher.Constraint("Coincident", 3, 2, 4, 2),
    Sketcher.Constraint("Coincident", 4, 1, 5, 1),
    Sketcher.Constraint("Coincident", 5, 2, 0, 1),
    Sketcher.Constraint("Coincident", 6, 2, 7, 1),
    Sketcher.Constraint("Coincident", 7, 2, 8, 1),
    Sketcher.Constraint("Coincident", 8, 2, 9, 1),
    Sketcher.Constraint("Coincident", 9, 2, 6, 1),
    Sketcher.Constraint("Horizontal", 0),
    Sketcher.Constraint("Vertical", 1),
    Sketcher.Constraint("Horizontal", 2),
    Sketcher.Constraint("Vertical", 3),
    Sketcher.Constraint("Vertical", 5),
    Sketcher.Constraint("Vertical", 6),
    Sketcher.Constraint("Horizontal", 7),
    Sketcher.Constraint("Vertical", 8),
    Sketcher.Constraint("Horizontal", 9),
    Sketcher.Constraint("Symmetric", 3, 2, 4, 1, -1),
    Sketcher.Constraint("Vertical", 4, 3, 2, 2),
    Sketcher.Constraint("Equal", 3, 5),
    Sketcher.Constraint("Radius", 4, Q("2 mm")),
    Sketcher.Constraint("DistanceX", 0, 2, 0, 1, Q("13 mm")),
    Sketcher.Constraint("DistanceX", 7, 1, 7, 2, Q("11 mm")),
    Sketcher.Constraint("DistanceY", 1, 1, 1, 2, Q("18 mm")),
    Sketcher.Constraint("DistanceY", 6, 2, 6, 1, Q("16 mm")),
    Sketcher.Constraint("DistanceY", 6, 2, -1, 1, Q("8 mm")),
    Sketcher.Constraint("DistanceX", 0, 2, 6, 2, Q("1 mm")),
    Sketcher.Constraint("DistanceX", 4, 3, -1, 1, Q("1.5 mm")),
])
sketch10.setExpression("Constraints[22]", "Params.sketch10_radius")
sketch10.setExpression("Constraints[23]", "Params.sketch10_width")
sketch10.setExpression("Constraints[24]", "Params.sketch10_width2")
sketch10.setExpression("Constraints[25]", "Params.sketch10_height")
sketch10.setExpression("Constraints[26]", "Params.sketch10_height2")
pad6 = body.newObject("PartDesign::Pad", "Pad005")
pad6.Profile = sketch10
pad6.setExpression("Length", "Params.pad6_length")
pad6.Reversed = True

# Sketch on XZ plane
sketch11 = body.newObject("Sketcher::SketchObject", "Sketch010")
sketch11.AttachmentSupport = (doc.getObject("XZ_Plane"), [""])
sketch11.MapMode = "FlatFace"
sketch11.AttachmentOffset = App.Placement(App.Vector(0, 0, -39.5), App.Rotation())
sketch11.addGeometry(Part.Circle(App.Vector(10, 0, 0), App.Vector(0, 0, 1), 6), False)
sketch11.addConstraint([
    Sketcher.Constraint("PointOnObject", 0, 3, -1),
    Sketcher.Constraint("Diameter", 0, Q("13 mm")),
    Sketcher.Constraint("DistanceX", -1, 1, 0, 3, Q("10.5 mm")),
])
sketch11.setExpression("Constraints[1]", "Params.sketch11_diameter")
pad7 = body.newObject("PartDesign::Pad", "Pad006")
pad7.Profile = sketch11
pad7.setExpression("Length", "Params.pad7_length")
pad7.Reversed = True

# Sketch on XZ plane
sketch12 = body.newObject("Sketcher::SketchObject", "Sketch011")
sketch12.AttachmentSupport = (doc.getObject("XZ_Plane"), [""])
sketch12.MapMode = "FlatFace"
sketch12.AttachmentOffset = App.Placement(App.Vector(0, 0, -41), App.Rotation())
sketch12.addGeometry(Part.Circle(App.Vector(10, 0, 0), App.Vector(0, 0, 1), 6), False)
sketch12.addConstraint([
    Sketcher.Constraint("PointOnObject", 0, 3, -1),
    Sketcher.Constraint("Diameter", 0, Q("11 mm")),
    Sketcher.Constraint("DistanceX", -1, 1, 0, 3, Q("10.5 mm")),
])
sketch12.setExpression("Constraints[1]", "Params.sketch12_diameter")
pad8 = body.newObject("PartDesign::Pad", "Pad007")
pad8.Profile = sketch12
pad8.setExpression("Length", "Params.pad8_length")
pad8.Reversed = True

# Sketch on XZ plane
sketch13 = body.newObject("Sketcher::SketchObject", "Sketch012")
sketch13.AttachmentSupport = (doc.getObject("XZ_Plane"), [""])
sketch13.MapMode = "FlatFace"
sketch13.AttachmentOffset = App.Placement(App.Vector(0, 0, -41.5), App.Rotation())
sketch13.addGeometry(Part.Circle(App.Vector(10.5, 0, 0), App.Vector(0, 0, 1), 3), False)
sketch13.addConstraint([
    Sketcher.Constraint("PointOnObject", 0, 3, -1),
    Sketcher.Constraint("Diameter", 0, Q("6 mm")),
    Sketcher.Constraint("DistanceX", -1, 1, 0, 3, Q("10.5 mm")),
])
sketch13.setExpression("Constraints[1]", "Params.sketch13_diameter")
pad9 = body.newObject("PartDesign::Pad", "Pad008")
pad9.Profile = sketch13
pad9.setExpression("Length", "Params.pad9_length")
pad9.Reversed = True

# Sketch on XZ plane
sketch14 = body.newObject("Sketcher::SketchObject", "Sketch013")
sketch14.AttachmentSupport = (doc.getObject("XZ_Plane"), [""])
sketch14.MapMode = "FlatFace"
sketch14.AttachmentOffset = App.Placement(App.Vector(0, 0, -45.5), App.Rotation())
sketch14.addGeometry(Part.Circle(App.Vector(10.5, 0, 0), App.Vector(0, 0, 1), 1), False)
sketch14.addConstraint([
    Sketcher.Constraint("PointOnObject", 0, 3, -1),
    Sketcher.Constraint("Diameter", 0, Q("2 mm")),
    Sketcher.Constraint("DistanceX", -1, 1, 0, 3, Q("10.5 mm")),
])
sketch14.setExpression("Constraints[1]", "Params.sketch14_diameter")
pocket5 = body.newObject("PartDesign::Pocket", "Pocket004")
pocket5.Profile = sketch14
pocket5.setExpression("Length", "Params.pocket5_length")
pocket5.Reversed = True

# Sketch on YZ plane
sketch15 = body.newObject("Sketcher::SketchObject", "Sketch014")
sketch15.AttachmentSupport = (doc.getObject("YZ_Plane"), [""])
sketch15.MapMode = "FlatFace"
sketch15.AttachmentOffset = App.Placement(App.Vector(0, 0, 20.5), App.Rotation())
sketch15.addGeometry([
    Part.LineSegment(App.Vector(8.5, 3.5, 0), App.Vector(4.5, 3.5, 0)),
    Part.LineSegment(App.Vector(4.5, 3.5, 0), App.Vector(4.5, -3.5, 0)),
    Part.LineSegment(App.Vector(4.5, -3.5, 0), App.Vector(8.5, -3.5, 0)),
    Part.LineSegment(App.Vector(8.5, -3.5, 0), App.Vector(8.5, 3.5, 0)),
], False)
sketch15.addConstraint([
    Sketcher.Constraint("Coincident", 0, 2, 1, 1),
    Sketcher.Constraint("Coincident", 1, 2, 2, 1),
    Sketcher.Constraint("Coincident", 2, 2, 3, 1),
    Sketcher.Constraint("Coincident", 3, 2, 0, 1),
    Sketcher.Constraint("Horizontal", 0),
    Sketcher.Constraint("Vertical", 1),
    Sketcher.Constraint("Horizontal", 2),
    Sketcher.Constraint("Vertical", 3),
    Sketcher.Constraint("DistanceX", 0, 2, 0, 1, Q("4 mm")),
    Sketcher.Constraint("DistanceY", 1, 2, 1, 1, Q("7 mm")),
    Sketcher.Constraint("DistanceX", -1, 1, 0, 2, Q("4.5 mm")),
    Sketcher.Constraint("DistanceY", -1, 1, 0, 2, Q("3.5 mm")),
])
sketch15.setExpression("Constraints[8]", "Params.sketch15_width")
sketch15.setExpression("Constraints[9]", "Params.sketch15_height")
pad10 = body.newObject("PartDesign::Pad", "Pad009")
pad10.Profile = sketch15
pad10.setExpression("Length", "Params.pad10_length")

# Sketch on YZ plane
sketch16 = body.newObject("Sketcher::SketchObject", "Sketch015")
sketch16.AttachmentSupport = (doc.getObject("YZ_Plane"), [""])
sketch16.MapMode = "FlatFace"
sketch16.AttachmentOffset = App.Placement(App.Vector(0, 0, 25.5), App.Rotation())
sketch16.addGeometry([
    Part.LineSegment(App.Vector(8.5, 3.5, 0), App.Vector(4.5, 3.5, 0)),  # 0
    Part.LineSegment(App.Vector(4.5, 3.5, 0), App.Vector(4.5, -3.5, 0)),  # 1
    Part.LineSegment(App.Vector(4.5, -3.5, 0), App.Vector(8.5, -3.5, 0)),  # 2
    Part.LineSegment(App.Vector(8.5, -3.5, 0), App.Vector(8.5, 3.5, 0)),  # 3
    Part.LineSegment(App.Vector(5, -3, 0), App.Vector(5, 3, 0)),  # 4
    Part.LineSegment(App.Vector(5, 3, 0), App.Vector(8, 3, 0)),  # 5
    Part.LineSegment(App.Vector(8, 3, 0), App.Vector(8, -3, 0)),  # 6
    Part.LineSegment(App.Vector(8, -3, 0), App.Vector(5, -3, 0)),  # 7
], False)
sketch16.addConstraint([
    Sketcher.Constraint("Coincident", 0, 2, 1, 1),
    Sketcher.Constraint("Coincident", 1, 2, 2, 1),
    Sketcher.Constraint("Coincident", 2, 2, 3, 1),
    Sketcher.Constraint("Coincident", 3, 2, 0, 1),
    Sketcher.Constraint("Coincident", 4, 2, 5, 1),
    Sketcher.Constraint("Coincident", 5, 2, 6, 1),
    Sketcher.Constraint("Coincident", 6, 2, 7, 1),
    Sketcher.Constraint("Coincident", 7, 2, 4, 1),
    Sketcher.Constraint("Horizontal", 0),
    Sketcher.Constraint("Vertical", 1),
    Sketcher.Constraint("Horizontal", 2),
    Sketcher.Constraint("Vertical", 3),
    Sketcher.Constraint("Vertical", 4),
    Sketcher.Constraint("Horizontal", 5),
    Sketcher.Constraint("Vertical", 6),
    Sketcher.Constraint("Horizontal", 7),
    Sketcher.Constraint("DistanceX", 0, 2, 0, 1, Q("4 mm")),
    Sketcher.Constraint("DistanceX", 5, 1, 5, 2, Q("3 mm")),
    Sketcher.Constraint("DistanceY", 1, 2, 1, 1, Q("7 mm")),
    Sketcher.Constraint("DistanceY", 4, 1, 4, 2, Q("6 mm")),
    Sketcher.Constraint("DistanceX", -1, 1, 4, 2, Q("5 mm")),
    Sketcher.Constraint("DistanceY", -1, 1, 4, 2, Q("3 mm")),
    Sketcher.Constraint("DistanceX", -1, 1, 0, 2, Q("4.5 mm")),
    Sketcher.Constraint("DistanceY", -1, 1, 0, 2, Q("3.5 mm")),
])
sketch16.setExpression("Constraints[16]", "Params.sketch16_width")
sketch16.setExpression("Constraints[17]", "Params.sketch16_width2")
sketch16.setExpression("Constraints[18]", "Params.sketch16_height")
sketch16.setExpression("Constraints[19]", "Params.sketch16_height2")
pocket6 = body.newObject("PartDesign::Pocket", "Pocket005")
pocket6.Profile = sketch16
pocket6.setExpression("Length", "Params.pocket6_length")

# Sketch on XZ plane
sketch17 = body.newObject("Sketcher::SketchObject", "Sketch016")
sketch17.AttachmentSupport = (doc.getObject("XZ_Plane"), [""])
sketch17.MapMode = "FlatFace"
sketch17.AttachmentOffset = App.Placement(App.Vector(0, 0, -5), App.Rotation())
sketch17.addGeometry([
    Part.LineSegment(App.Vector(21.5, 3, 0), App.Vector(25.5, 2.5, 0)),  # 0
    Part.LineSegment(App.Vector(25.5, 2.5, 0), App.Vector(25.5, 3, 0)),  # 1
    Part.LineSegment(App.Vector(25.5, 3, 0), App.Vector(21.5, 3, 0)),  # 2
    Part.LineSegment(App.Vector(25.5, -2.5, 0), App.Vector(21.5, -3, 0)),  # 3
    Part.LineSegment(App.Vector(21.5, -3, 0), App.Vector(25.5, -3, 0)),  # 4
    Part.LineSegment(App.Vector(25.5, -3, 0), App.Vector(25.5, -2.5, 0)),  # 5
], False)
sketch17.addConstraint([
    Sketcher.Constraint("Coincident", 0, 2, 1, 1),
    Sketcher.Constraint("Coincident", 1, 2, 2, 1),
    Sketcher.Constraint("Coincident", 2, 2, 0, 1),
    Sketcher.Constraint("Coincident", 3, 2, 4, 1),
    Sketcher.Constraint("Coincident", 4, 2, 5, 1),
    Sketcher.Constraint("Coincident", 5, 2, 3, 1),
    Sketcher.Constraint("Vertical", 1),
    Sketcher.Constraint("Horizontal", 2),
    Sketcher.Constraint("Horizontal", 4),
    Sketcher.Constraint("Vertical", 5),
    Sketcher.Constraint("Symmetric", 2, 2, 3, 2, -1),
    Sketcher.Constraint("Symmetric", 0, 2, 5, 2, -1),
    Sketcher.Constraint("DistanceX", 2, 2, 2, 1, Q("4 mm")),
    Sketcher.Constraint("DistanceY", 1, 1, 1, 2, Q("0.5 mm")),
    Sketcher.Constraint("DistanceY", -1, 1, 1, 2, Q("3 mm")),
    Sketcher.Constraint("DistanceX", -1, 1, 0, 2, Q("25.5 mm")),
])
sketch17.setExpression("Constraints[12]", "Params.sketch17_width")
sketch17.setExpression("Constraints[13]", "Params.sketch17_height")
pocket7 = body.newObject("PartDesign::Pocket", "Pocket006")
pocket7.Profile = sketch17
pocket7.setExpression("Length", "Params.pocket7_length")

# Sketch on XY plane
sketch18 = body.newObject("Sketcher::SketchObject", "Sketch017")
sketch18.AttachmentSupport = (doc.getObject("XY_Plane"), [""])
sketch18.MapMode = "FlatFace"
sketch18.AttachmentOffset = App.Placement(App.Vector(0, 0, -3.5), App.Rotation())
sketch18.addGeometry([
    Part.LineSegment(App.Vector(21.5, 8, 0), App.Vector(25.5, 8, 0)),  # 0
    Part.LineSegment(App.Vector(25.5, 8, 0), App.Vector(25.5, 7.5, 0)),  # 1
    Part.LineSegment(App.Vector(25.5, 7.5, 0), App.Vector(21.5, 8, 0)),  # 2
    Part.LineSegment(App.Vector(25.5, 5, 0), App.Vector(21.5, 5, 0)),  # 3
    Part.LineSegment(App.Vector(21.5, 5, 0), App.Vector(25.5, 5.5, 0)),  # 4
    Part.LineSegment(App.Vector(25.5, 5.5, 0), App.Vector(25.5, 5, 0)),  # 5
], False)
sketch18.addConstraint([
    Sketcher.Constraint("Coincident", 0, 2, 1, 1),
    Sketcher.Constraint("Coincident", 1, 2, 2, 1),
    Sketcher.Constraint("Coincident", 2, 2, 0, 1),
    Sketcher.Constraint("Coincident", 3, 2, 4, 1),
    Sketcher.Constraint("Coincident", 4, 2, 5, 1),
    Sketcher.Constraint("Coincident", 5, 2, 3, 1),
    Sketcher.Constraint("Horizontal", 0),
    Sketcher.Constraint("Vertical", 1),
    Sketcher.Constraint("Horizontal", 3),
    Sketcher.Constraint("Vertical", 5),
    Sketcher.Constraint("Vertical", 2, 2, 3, 2),
    Sketcher.Constraint("Vertical", 1, 2, 4, 2),
    Sketcher.Constraint("Equal", 1, 5),
    Sketcher.Constraint("DistanceX", 0, 1, 0, 2, Q("4 mm")),
    Sketcher.Constraint("DistanceY", 1, 2, 1, 1, Q("0.5 mm")),
    Sketcher.Constraint("DistanceY", -1, 1, 0, 2, Q("8 mm")),
    Sketcher.Constraint("DistanceY", -1, 1, 3, 2, Q("5 mm")),
    Sketcher.Constraint("DistanceX", -1, 1, 0, 2, Q("25.5 mm")),
])
sketch18.setExpression("Constraints[13]", "Params.sketch18_width")
sketch18.setExpression("Constraints[14]", "Params.sketch18_height")
pocket8 = body.newObject("PartDesign::Pocket", "Pocket007")
pocket8.Profile = sketch18
pocket8.setExpression("Length", "Params.pocket8_length")
pocket8.Reversed = True

doc.recompute()
